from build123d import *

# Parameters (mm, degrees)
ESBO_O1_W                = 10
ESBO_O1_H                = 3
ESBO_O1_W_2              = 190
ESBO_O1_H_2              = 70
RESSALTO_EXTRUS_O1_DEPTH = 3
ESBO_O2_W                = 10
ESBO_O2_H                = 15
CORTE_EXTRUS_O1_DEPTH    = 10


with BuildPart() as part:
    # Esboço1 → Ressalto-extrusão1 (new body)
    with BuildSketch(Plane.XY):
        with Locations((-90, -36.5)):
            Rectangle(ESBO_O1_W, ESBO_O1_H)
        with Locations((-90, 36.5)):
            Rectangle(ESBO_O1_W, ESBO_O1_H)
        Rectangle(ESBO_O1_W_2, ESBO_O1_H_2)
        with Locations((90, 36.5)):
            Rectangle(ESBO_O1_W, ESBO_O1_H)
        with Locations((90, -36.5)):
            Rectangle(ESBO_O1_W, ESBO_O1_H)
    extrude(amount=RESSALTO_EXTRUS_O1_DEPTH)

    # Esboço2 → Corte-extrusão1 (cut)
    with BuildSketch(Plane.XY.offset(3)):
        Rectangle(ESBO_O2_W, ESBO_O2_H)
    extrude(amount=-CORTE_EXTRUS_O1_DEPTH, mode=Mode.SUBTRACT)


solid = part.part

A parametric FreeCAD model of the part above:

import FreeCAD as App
import Part
import Sketcher
Q = App.Units.Quantity


def add_polygon(sketch, points):
    """Adds a closed chain of lines whose ends are joined by coincident constraints."""
    first, n = sketch.GeometryCount, len(points)
    for a, b in zip(points, points[1:] + points[:1]):
        sketch.addGeometry(Part.LineSegment(App.Vector(*a, 0), App.Vector(*b, 0)), False)
    for i in range(n):
        sketch.addConstraint(Sketcher.Constraint("Coincident", first + i, 2, first + (i + 1) % n, 1))

doc = App.newDocument("Part")
body = doc.addObject("PartDesign::Body", "Body")

# Sketch on XY plane
sketch1 = body.newObject("Sketcher::SketchObject", "Sketch")
sketch1.AttachmentSupport = (doc.getObject("XY_Plane"), [""])
sketch1.MapMode = "FlatFace"
add_polygon(sketch1, [(-95, -38), (-85, -38), (-85, -35), (85, -35), (85, -38), (95, -38), (95, 38), (85, 38), (85, 35), (-85, 35), (-85, 38), (-95, 38)])  # lines 0-11
sketch1.addConstraint([
    Sketcher.Constraint("Horizontal", 0),
    Sketcher.Constraint("Vertical", 1),
    Sketcher.Constraint("Horizontal", 2),
    Sketcher.Constraint("Vertical", 3),
    Sketcher.Constraint("Horizontal", 4),
    Sketcher.Constraint("Vertical", 5),
    Sketcher.Constraint("Horizontal", 6),
    Sketcher.Constraint("Vertical", 7),
    Sketcher.Constraint("Horizontal", 8),
    Sketcher.Constraint("Vertical", 9),
    Sketcher.Constraint("Horizontal", 10),
    Sketcher.Constraint("Vertical", 11),
    Sketcher.Constraint("Symmetric", 0, 2, 6, 2, -1, 1),
    Sketcher.Constraint("Symmetric", 2, 2, 8, 2, -1, 1),
    Sketcher.Constraint("Symmetric", 4, 2, 10, 2, -1, 1),
    Sketcher.Constraint("Symmetric", 0, 2, 3, 2, -2),
    Sketcher.Constraint("DistanceX", 0, 1, 0, 2, Q("10 mm")),
    Sketcher.Constraint("DistanceX", 2, 1, 2, 2, Q("170 mm")),
    Sketcher.Constraint("DistanceY", 1, 1, 1, 2, Q("3 mm")),
    Sketcher.Constraint("DistanceY", 5, 1, 5, 2, Q("76 mm")),
])
pad1 = body.newObject("PartDesign::Pad", "Pad")
pad1.Profile = sketch1
pad1.Length = 3

# Sketch on XY plane
sketch2 = body.newObject("Sketcher::SketchObject", "Sketch001")
sketch2.AttachmentSupport = (doc.getObject("XY_Plane"), [""])
sketch2.MapMode = "FlatFace"
sketch2.AttachmentOffset = App.Placement(App.Vector(0, 0, 3), App.Rotation())
add_polygon(sketch2, [(-5, 7.5), (-5, -7.5), (5, -7.5), (5, 7.5)])  # lines 0-3
sketch2.addConstraint([
    Sketcher.Constraint("Vertical", 0),
    Sketcher.Constraint("Horizontal", 1),
    Sketcher.Constraint("Vertical", 2),
    Sketcher.Constraint("Horizontal", 3),
    Sketcher.Constraint("Symmetric", 0, 2, 2, 2, -1, 1),
    Sketcher.Constraint("DistanceX", 1, 1, 1, 2, Q("10 mm")),
    Sketcher.Constraint("DistanceY", 0, 2, 0, 1, Q("15 mm")),
])
pocket1 = body.newObject("PartDesign::Pocket", "Pocket")
pocket1.Profile = sketch2
pocket1.Length = 10

doc.recompute()
